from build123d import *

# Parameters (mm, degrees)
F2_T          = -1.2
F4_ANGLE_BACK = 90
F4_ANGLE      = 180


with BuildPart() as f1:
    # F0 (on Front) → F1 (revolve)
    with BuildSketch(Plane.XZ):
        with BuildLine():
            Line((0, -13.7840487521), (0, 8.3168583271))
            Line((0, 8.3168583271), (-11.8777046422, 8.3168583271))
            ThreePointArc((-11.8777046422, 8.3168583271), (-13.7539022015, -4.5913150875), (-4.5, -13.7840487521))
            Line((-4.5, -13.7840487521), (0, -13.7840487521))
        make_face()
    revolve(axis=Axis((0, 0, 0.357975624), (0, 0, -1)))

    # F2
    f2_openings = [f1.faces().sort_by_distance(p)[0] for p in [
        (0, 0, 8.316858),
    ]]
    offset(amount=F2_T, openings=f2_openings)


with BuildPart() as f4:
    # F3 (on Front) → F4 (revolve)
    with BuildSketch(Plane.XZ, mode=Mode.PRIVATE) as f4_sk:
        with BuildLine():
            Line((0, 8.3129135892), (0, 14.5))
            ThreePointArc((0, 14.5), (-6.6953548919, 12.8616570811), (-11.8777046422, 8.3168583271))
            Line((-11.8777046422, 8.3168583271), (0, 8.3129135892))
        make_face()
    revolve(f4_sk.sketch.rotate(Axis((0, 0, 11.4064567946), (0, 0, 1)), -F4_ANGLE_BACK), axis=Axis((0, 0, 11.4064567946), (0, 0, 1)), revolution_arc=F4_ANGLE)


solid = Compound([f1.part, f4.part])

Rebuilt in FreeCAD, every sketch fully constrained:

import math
import FreeCAD as App
import Part
import Sketcher
from FreeCAD import Vector
Q = App.Units.Quantity


def faces_at(feature, points):
    """Names of the faces that lie closest to the given points."""
    faces = feature.Shape.Faces
    near = lambda p: min(range(len(faces)), key=lambda i: faces[i].distToShape(Part.Vertex(*p))[0])
    return sorted({f"Face{near(p) + 1}" for p in points})

doc = App.newDocument("Part")
body = doc.addObject("PartDesign::Body", "Body")

# Sketch on XZ plane
sketch1 = body.newObject("Sketcher::SketchObject", "Sketch")
sketch1.AttachmentSupport = (doc.getObject("XZ_Plane"), [""])
sketch1.MapMode = "FlatFace"
sketch1.addGeometry([
    Part.LineSegment(Vector(0, -13.8, 0), Vector(0, 8.3, 0)),
    Part.LineSegment(Vector(0, 8.3, 0), Vector(-11.9, 8.3, 0)),
    Part.ArcOfCircle(Part.Circle(Vector(0, 0, 0), Vector(0, 0, 1), 14.5), math.radians(145), math.radians(252)),
    Part.LineSegment(Vector(-4.5, -13.8, 0), Vector(0, -13.8, 0)),
], False)
sketch1.addConstraint([
    Sketcher.Constraint("Coincident", 0, 2, 1, 1),
    Sketcher.Constraint("Coincident", 1, 2, 2, 1),
    Sketcher.Constraint("Coincident", 2, 2, 3, 1),
    Sketcher.Constraint("Coincident", 3, 2, 0, 1),
    Sketcher.Constraint("Vertical", 0),
    Sketcher.Constraint("Horizontal", 1),
    Sketcher.Constraint("Horizontal", 3),
    Sketcher.Constraint("Coincident", 2, 3, -1, 1),
    Sketcher.Constraint("PointOnObject", 0, 2, -2),
    Sketcher.Constraint("Radius", 2, Q("14.5 mm")),
    Sketcher.Constraint("DistanceX", 3, 1, 3, 2, Q("4.5 mm")),
    Sketcher.Constraint("DistanceX", 1, 2, 1, 1, Q("11.877705 mm")),
])
revolution = body.newObject("PartDesign::Revolution", "Revolution")
revolution.Profile = sketch1
revolution.ReferenceAxis = (sketch1, ["V_Axis"])
revolution.Angle = 360
doc.recompute()

thickness = body.newObject("PartDesign::Thickness", "Thickness")
thickness.Base = (revolution, faces_at(revolution, [(0, 0, 8.317)]))
thickness.Value = 1.2
thickness.Reversed = True
thickness.Join = "Arc"
body2 = doc.addObject("PartDesign::Body", "Body001")

# Sketch on YZ plane
sketch2 = body2.newObject("Sketcher::SketchObject", "Sketch001")
sketch2.AttachmentSupport = (doc.getObject("YZ_Plane001"), [""])
sketch2.MapMode = "FlatFace"
sketch2.addGeometry([
    Part.LineSegment(Vector(0, 8, 0), Vector(0, 14, 0)),
    Part.ArcOfCircle(Part.Circle(Vector(0, 0, 0), Vector(0, 0, 1), 14), math.radians(35), math.radians(90)),
    Part.LineSegment(Vector(12, 8, 0), Vector(0, 8, 0)),
], False)
sketch2.addConstraint([
    Sketcher.Constraint("Coincident", 0, 2, 1, 2),
    Sketcher.Constraint("Coincident", 1, 1, 2, 1),
    Sketcher.Constraint("Coincident", 2, 2, 0, 1),
    Sketcher.Constraint("Vertical", 0),
    Sketcher.Constraint("Coincident", 1, 3, -1, 1),
    Sketcher.Constraint("PointOnObject", 0, 2, -2),
    Sketcher.Constraint("Radius", 1, Q("14.5 mm")),
    Sketcher.Constraint("DistanceY", 0, 1, 0, 2, Q("6.187086 mm")),
    Sketcher.Constraint("DistanceY", -1, 1, 1, 1, Q("8.316858 mm")),
])
revolution2 = body2.newObject("PartDesign::Revolution", "Revolution001")
revolution2.Profile = sketch2
revolution2.ReferenceAxis = (sketch2, ["V_Axis"])
revolution2.Angle = 180

doc.recompute()
